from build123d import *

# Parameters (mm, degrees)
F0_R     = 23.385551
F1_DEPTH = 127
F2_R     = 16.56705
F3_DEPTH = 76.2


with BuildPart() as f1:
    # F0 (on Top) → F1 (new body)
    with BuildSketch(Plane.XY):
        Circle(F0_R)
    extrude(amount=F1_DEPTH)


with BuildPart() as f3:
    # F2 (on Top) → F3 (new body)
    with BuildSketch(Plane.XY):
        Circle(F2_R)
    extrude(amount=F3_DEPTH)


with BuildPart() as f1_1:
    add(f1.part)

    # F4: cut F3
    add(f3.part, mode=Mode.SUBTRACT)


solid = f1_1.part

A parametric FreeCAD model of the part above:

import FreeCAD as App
import Part
import Sketcher
Q = App.Units.Quantity

doc = App.newDocument("Part")
body = doc.addObject("PartDesign::Body", "Body")

# Sketch on XY plane
sketch1 = doc.addObject("Sketcher::SketchObject", "Sketch")
body.addObject(sketch1)
sketch1.AttachmentSupport = (doc.XY_Plane, [""])
sketch1.MapMode = "FlatFace"
sketch1.addGeometry(Part.Circle(App.Vector(0, 0, 0), App.Vector(0, 0, 1), 23), False)
sketch1.addConstraint(Sketcher.Constraint("Coincident", 0, 3, -1, 1))
sketch1.addConstraint(Sketcher.Constraint("Diameter", 0, Q("46.771102 mm")))
pad1 = doc.addObject("PartDesign::Pad", "Pad")
body.addObject(pad1)
pad1.Profile = sketch1
pad1.Length = Q("5 in")
body2 = doc.addObject("PartDesign::Body", "Body001")

# Sketch on XY plane
sketch2 = doc.addObject("Sketcher::SketchObject", "Sketch001")
body2.addObject(sketch2)
sketch2.AttachmentSupport = (doc.getObject("XY_Plane001"), [""])
sketch2.MapMode = "FlatFace"
sketch2.addGeometry(Part.Circle(App.Vector(0, 0, 0), App.Vector(0, 0, 1), 17), False)
sketch2.addConstraint(Sketcher.Constraint("Coincident", 0, 3, -1, 1))
sketch2.addConstraint(Sketcher.Constraint("Diameter", 0, Q("33.1341 mm")))
pad2 = doc.addObject("PartDesign::Pad", "Pad001")
body2.addObject(pad2)
pad2.Profile = sketch2
pad2.Length = Q("3 in")
doc.recompute()

boolean = doc.addObject("PartDesign::Boolean", "Boolean")
body.addObject(boolean)
boolean.Type = "Cut"
boolean.addObjects([body2])

doc.recompute()
